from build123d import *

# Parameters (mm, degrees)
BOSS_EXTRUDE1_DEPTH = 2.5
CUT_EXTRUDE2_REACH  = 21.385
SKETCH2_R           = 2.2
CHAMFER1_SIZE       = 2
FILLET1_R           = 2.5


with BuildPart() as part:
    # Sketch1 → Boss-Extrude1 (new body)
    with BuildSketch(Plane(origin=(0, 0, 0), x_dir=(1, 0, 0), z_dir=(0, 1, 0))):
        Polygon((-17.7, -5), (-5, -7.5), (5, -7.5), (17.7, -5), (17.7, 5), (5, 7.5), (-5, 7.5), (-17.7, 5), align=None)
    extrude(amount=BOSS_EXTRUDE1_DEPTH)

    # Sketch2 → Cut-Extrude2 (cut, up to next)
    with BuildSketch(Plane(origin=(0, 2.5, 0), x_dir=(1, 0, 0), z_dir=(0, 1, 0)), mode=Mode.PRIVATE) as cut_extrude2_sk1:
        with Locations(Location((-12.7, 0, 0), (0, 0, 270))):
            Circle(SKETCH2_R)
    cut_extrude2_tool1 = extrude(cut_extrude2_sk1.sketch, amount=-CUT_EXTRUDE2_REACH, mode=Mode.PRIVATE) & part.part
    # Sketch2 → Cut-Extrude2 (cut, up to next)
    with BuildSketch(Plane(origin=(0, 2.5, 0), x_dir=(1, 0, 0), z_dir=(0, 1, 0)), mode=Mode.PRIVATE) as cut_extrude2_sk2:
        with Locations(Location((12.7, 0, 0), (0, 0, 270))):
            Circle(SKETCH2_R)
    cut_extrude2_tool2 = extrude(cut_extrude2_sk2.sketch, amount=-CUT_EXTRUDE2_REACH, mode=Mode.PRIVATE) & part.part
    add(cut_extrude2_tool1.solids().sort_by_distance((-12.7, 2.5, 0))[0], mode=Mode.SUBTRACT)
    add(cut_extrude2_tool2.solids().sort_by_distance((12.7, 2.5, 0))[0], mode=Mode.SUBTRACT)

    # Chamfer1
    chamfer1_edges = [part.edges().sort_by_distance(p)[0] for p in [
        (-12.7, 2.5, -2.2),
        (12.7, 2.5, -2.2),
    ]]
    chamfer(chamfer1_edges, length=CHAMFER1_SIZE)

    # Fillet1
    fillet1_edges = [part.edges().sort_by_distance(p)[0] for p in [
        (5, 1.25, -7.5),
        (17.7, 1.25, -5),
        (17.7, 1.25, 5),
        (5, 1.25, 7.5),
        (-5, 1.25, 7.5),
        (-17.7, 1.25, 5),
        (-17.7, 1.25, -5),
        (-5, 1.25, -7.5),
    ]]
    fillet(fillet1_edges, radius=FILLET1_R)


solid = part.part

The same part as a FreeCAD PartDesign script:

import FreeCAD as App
import Part
import Sketcher


def edges_at(feature, points):
    """Names of the edges that pass closest to the given points."""
    edges = feature.Shape.Edges
    near = lambda p: min(range(len(edges)), key=lambda i: edges[i].distToShape(Part.Vertex(*p))[0])
    return sorted({f"Edge{near(p) + 1}" for p in points})


def add_polygon(sketch, points):
    """Adds a closed chain of lines whose ends are joined by coincident constraints."""
    first, n = sketch.GeometryCount, len(points)
    for a, b in zip(points, points[1:] + points[:1]):
        sketch.addGeometry(Part.LineSegment(App.Vector(*a, 0), App.Vector(*b, 0)), False)
    for i in range(n):
        sketch.addConstraint(Sketcher.Constraint("Coincident", first + i, 2, first + (i + 1) % n, 1))

doc = App.newDocument("Part")
params = doc.addObject("Spreadsheet::Sheet", "Params")
for row, (alias, value) in enumerate([
    ("sketch1_width", "10 mm"),
    ("pad1_length", "2.5 mm"),
    ("sketch2_diameter", "4.4 mm"),
    ("sketch3_diameter", "4.4 mm"),
    ("chamfer_size", "2 mm"),
    ("fillet_radius", "2.5 mm"),
], start=1):
    params.set(f"A{row}", alias)
    params.set(f"B{row}", "=" + value)
    params.setAlias(f"B{row}", alias)

body = doc.addObject("PartDesign::Body", "Body")

# Sketch on XZ plane
sketch1 = body.newObject("Sketcher::SketchObject", "Sketch")
sketch1.AttachmentSupport = (doc.getObject("XZ_Plane"), [""])
sketch1.MapMode = "FlatFace"
add_polygon(sketch1, [(-17.7, 5), (-5, 7.5), (5, 7.5), (17.7, 5), (17.7, -5), (5, -7.5), (-5, -7.5), (-17.7, -5)])  # lines 0-7
sketch1.addConstraint(Sketcher.Constraint("Horizontal", 1))
sketch1.addConstraint(Sketcher.Constraint("Vertical", 3))
sketch1.addConstraint(Sketcher.Constraint("Horizontal", 5))
sketch1.addConstraint(Sketcher.Constraint("Vertical", 7))
sketch1.addConstraint(Sketcher.Constraint("Symmetric", 0, 2, 4, 2, -1, 1))
sketch1.addConstraint(Sketcher.Constraint("Symmetric", 2, 2, 6, 2, -1, 1))
sketch1.addConstraint(Sketcher.Constraint("Parallel", 0, 4))
sketch1.addConstraint(Sketcher.Constraint("Parallel", 2, 6))
sketch1.addConstraint(Sketcher.Constraint("Horizontal", 3, 2, 6, 2))
sketch1.addConstraint(Sketcher.Constraint("Vertical", 1, 2, 4, 2))
sketch1.addConstraint(Sketcher.Constraint("Equal", 5, 3))
sketch1.addConstraint(Sketcher.Constraint("DistanceX", 1, 1, 1, 2, 10.0))
sketch1.addConstraint(Sketcher.Constraint("DistanceY", 4, 2, 1, 2, 15.0))
sketch1.addConstraint(Sketcher.Constraint("DistanceX", -1, 1, 2, 2, 17.7))
sketch1.setExpression("Constraints[19]", "Params.sketch1_width")
pad1 = body.newObject("PartDesign::Pad", "Pad")
pad1.Profile = sketch1
pad1.setExpression("Length", "Params.pad1_length")
pad1.Reversed = True

# Sketch on XZ plane
sketch2 = body.newObject("Sketcher::SketchObject", "Sketch001")
sketch2.AttachmentSupport = (doc.getObject("XZ_Plane"), [""])
sketch2.MapMode = "FlatFace"
sketch2.AttachmentOffset = App.Placement(App.Vector(0, 0, -2.5), App.Rotation())
sketch2.addGeometry(Part.Circle(App.Vector(-12.7, 0, 0), App.Vector(0, 0, 1), 2.2), False)
sketch2.addConstraint(Sketcher.Constraint("PointOnObject", 0, 3, -1))
sketch2.addConstraint(Sketcher.Constraint("Diameter", 0, 4.4))
sketch2.addConstraint(Sketcher.Constraint("DistanceX", 0, 3, -1, 1, 12.7))
sketch2.setExpression("Constraints[1]", "Params.sketch2_diameter")
pocket1 = body.newObject("PartDesign::Pocket", "Pocket")
pocket1.Profile = sketch2
pocket1.Type = "UpToFirst"
pocket1.Reversed = True

# Sketch on XZ plane
sketch3 = body.newObject("Sketcher::SketchObject", "Sketch002")
sketch3.AttachmentSupport = (doc.getObject("XZ_Plane"), [""])
sketch3.MapMode = "FlatFace"
sketch3.AttachmentOffset = App.Placement(App.Vector(0, 0, -2.5), App.Rotation())
sketch3.addGeometry(Part.Circle(App.Vector(12.7, 0, 0), App.Vector(0, 0, 1), 2.2), False)
sketch3.addConstraint(Sketcher.Constraint("PointOnObject", 0, 3, -1))
sketch3.addConstraint(Sketcher.Constraint("Diameter", 0, 4.4))
sketch3.addConstraint(Sketcher.Constraint("DistanceX", -1, 1, 0, 3, 12.7))
sketch3.setExpression("Constraints[1]", "Params.sketch3_diameter")
pocket2 = body.newObject("PartDesign::Pocket", "Pocket001")
pocket2.Profile = sketch3
pocket2.Type = "UpToFirst"
pocket2.Reversed = True
doc.recompute()

chamfer = body.newObject("PartDesign::Chamfer", "Chamfer")
chamfer.Base = (pocket2, edges_at(pocket2, [(-12.7, 2.5, -2.2), (12.7, 2.5, -2.2)]))
chamfer.setExpression("Size", "Params.chamfer_size")
doc.recompute()

fillet = body.newObject("PartDesign::Fillet", "Fillet")
fillet.Base = (chamfer, edges_at(chamfer, [
    (5, 1.25, -7.5),
    (17.7, 1.25, -5),
    (17.7, 1.25, 5),
    (5, 1.25, 7.5),
    (-5, 1.25, 7.5),
    (-17.7, 1.25, 5),
    (-17.7, 1.25, -5),
    (-5, 1.25, -7.5),
]))
fillet.setExpression("Radius", "Params.fillet_radius")

doc.recompute()
